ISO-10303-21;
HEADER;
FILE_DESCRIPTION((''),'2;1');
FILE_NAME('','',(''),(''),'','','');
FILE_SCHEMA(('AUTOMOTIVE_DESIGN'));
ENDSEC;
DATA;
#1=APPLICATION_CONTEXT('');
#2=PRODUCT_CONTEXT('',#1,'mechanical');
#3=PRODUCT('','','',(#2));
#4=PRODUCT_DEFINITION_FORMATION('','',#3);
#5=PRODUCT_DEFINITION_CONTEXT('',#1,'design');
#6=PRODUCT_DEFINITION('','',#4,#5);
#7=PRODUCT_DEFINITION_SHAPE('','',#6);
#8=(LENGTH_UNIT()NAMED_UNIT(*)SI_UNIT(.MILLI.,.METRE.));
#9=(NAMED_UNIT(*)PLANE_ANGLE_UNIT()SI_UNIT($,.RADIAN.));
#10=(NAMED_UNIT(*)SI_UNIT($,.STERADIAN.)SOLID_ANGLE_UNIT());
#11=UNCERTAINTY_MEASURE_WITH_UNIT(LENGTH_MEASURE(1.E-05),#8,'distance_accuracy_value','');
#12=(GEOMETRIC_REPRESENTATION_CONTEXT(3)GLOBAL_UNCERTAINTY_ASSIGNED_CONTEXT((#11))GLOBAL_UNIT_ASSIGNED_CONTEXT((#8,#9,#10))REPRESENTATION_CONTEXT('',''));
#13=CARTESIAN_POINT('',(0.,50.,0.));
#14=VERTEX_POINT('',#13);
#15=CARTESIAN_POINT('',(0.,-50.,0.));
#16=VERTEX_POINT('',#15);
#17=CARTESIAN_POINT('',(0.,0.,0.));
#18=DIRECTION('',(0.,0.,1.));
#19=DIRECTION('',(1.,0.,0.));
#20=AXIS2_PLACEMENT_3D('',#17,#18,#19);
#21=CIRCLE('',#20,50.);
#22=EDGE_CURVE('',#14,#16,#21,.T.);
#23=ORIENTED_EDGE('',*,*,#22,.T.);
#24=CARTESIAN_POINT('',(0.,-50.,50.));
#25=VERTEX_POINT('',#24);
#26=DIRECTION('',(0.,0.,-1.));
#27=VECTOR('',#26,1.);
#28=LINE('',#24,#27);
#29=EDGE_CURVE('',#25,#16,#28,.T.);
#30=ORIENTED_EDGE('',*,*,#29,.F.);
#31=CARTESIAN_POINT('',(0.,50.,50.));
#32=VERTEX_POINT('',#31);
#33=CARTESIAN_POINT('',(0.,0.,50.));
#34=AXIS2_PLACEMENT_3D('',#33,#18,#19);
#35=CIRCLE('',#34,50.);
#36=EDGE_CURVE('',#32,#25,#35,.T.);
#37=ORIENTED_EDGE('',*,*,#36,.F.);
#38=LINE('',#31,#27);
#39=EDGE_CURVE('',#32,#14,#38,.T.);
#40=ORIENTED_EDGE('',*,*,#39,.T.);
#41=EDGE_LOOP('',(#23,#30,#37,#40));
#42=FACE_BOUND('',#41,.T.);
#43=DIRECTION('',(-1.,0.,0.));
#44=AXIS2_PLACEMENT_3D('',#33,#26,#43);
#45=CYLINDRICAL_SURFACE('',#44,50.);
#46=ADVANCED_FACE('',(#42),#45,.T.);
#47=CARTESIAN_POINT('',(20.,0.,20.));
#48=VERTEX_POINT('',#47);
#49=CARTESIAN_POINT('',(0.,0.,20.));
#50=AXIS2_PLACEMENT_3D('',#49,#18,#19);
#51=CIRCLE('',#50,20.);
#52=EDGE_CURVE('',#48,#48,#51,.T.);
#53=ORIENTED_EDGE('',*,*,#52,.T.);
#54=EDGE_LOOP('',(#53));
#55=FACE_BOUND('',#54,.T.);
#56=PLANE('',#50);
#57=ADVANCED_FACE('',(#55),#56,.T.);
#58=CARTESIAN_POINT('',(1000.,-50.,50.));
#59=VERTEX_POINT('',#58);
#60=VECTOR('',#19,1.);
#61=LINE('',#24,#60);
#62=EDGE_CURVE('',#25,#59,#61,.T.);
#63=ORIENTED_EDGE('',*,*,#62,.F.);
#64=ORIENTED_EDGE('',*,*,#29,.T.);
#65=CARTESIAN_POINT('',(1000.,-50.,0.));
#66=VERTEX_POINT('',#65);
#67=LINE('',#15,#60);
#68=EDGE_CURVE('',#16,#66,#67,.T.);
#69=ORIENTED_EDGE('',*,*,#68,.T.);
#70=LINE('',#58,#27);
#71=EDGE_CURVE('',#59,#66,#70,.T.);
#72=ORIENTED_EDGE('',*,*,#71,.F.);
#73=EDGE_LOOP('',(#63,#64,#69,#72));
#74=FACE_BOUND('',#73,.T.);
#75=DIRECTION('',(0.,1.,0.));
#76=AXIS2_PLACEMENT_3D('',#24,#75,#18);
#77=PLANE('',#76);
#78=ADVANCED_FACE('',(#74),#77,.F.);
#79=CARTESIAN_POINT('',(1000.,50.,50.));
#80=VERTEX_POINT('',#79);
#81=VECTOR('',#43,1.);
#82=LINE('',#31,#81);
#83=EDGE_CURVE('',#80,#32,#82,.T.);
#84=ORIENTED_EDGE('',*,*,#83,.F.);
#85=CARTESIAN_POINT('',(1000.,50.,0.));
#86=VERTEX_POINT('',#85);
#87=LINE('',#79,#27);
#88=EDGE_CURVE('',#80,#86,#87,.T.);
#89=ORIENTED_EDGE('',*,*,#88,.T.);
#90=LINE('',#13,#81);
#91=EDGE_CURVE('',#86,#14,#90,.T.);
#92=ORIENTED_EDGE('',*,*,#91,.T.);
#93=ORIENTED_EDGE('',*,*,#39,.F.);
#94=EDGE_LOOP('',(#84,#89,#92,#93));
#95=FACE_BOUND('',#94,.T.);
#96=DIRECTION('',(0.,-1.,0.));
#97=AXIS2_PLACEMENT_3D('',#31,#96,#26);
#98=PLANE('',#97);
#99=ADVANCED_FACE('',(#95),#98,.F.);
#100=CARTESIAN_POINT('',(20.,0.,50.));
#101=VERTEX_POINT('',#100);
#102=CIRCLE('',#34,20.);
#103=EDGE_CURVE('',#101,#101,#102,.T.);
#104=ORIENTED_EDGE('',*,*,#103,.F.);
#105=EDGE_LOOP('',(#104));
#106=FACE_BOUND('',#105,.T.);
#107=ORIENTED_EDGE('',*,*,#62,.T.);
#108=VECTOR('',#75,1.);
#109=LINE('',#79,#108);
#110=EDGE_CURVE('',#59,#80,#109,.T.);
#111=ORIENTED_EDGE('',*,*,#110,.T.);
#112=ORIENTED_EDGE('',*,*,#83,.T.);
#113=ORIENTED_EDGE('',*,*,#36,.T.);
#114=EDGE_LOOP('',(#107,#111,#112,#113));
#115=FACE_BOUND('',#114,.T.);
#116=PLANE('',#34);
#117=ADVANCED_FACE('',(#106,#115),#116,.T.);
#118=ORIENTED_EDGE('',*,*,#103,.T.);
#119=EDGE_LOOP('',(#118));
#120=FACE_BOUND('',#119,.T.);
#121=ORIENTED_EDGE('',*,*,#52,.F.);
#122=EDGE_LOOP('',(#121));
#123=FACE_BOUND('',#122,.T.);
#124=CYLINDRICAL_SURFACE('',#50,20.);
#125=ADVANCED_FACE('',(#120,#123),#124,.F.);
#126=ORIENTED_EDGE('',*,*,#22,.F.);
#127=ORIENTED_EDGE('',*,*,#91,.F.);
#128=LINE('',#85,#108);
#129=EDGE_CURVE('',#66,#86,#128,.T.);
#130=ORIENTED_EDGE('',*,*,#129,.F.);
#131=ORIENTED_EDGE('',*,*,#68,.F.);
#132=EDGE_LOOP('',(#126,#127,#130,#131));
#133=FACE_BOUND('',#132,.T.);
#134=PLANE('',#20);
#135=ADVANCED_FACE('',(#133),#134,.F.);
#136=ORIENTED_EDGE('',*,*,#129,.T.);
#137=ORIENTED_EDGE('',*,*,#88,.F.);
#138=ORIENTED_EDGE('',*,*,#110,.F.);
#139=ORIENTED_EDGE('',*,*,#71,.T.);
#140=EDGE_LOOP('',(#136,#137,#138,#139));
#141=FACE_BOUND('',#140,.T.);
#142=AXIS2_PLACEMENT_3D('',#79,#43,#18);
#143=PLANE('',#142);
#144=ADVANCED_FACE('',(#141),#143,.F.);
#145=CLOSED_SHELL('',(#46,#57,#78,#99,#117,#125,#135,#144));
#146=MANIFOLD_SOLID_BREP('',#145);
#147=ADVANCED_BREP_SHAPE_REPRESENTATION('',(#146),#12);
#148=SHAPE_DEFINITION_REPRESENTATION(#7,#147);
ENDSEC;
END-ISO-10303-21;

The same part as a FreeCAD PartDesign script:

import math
import FreeCAD as App
import Part
import Sketcher
from FreeCAD import Vector
Q = App.Units.Quantity

doc = App.newDocument("Part")
body = doc.addObject("PartDesign::Body", "Body")

sketch1 = body.newObject("Sketcher::SketchObject", "Sketch")
sketch1.AttachmentSupport = (doc.getObject("XY_Plane"), [""])
sketch1.MapMode = "FlatFace"
sketch1.addGeometry([
    Part.LineSegment(Vector(1000, 50, 0), Vector(0, 50, 0)),
    Part.ArcOfCircle(Part.Circle(Vector(0, 0, 0), Vector(0, 0, 1), 50), math.radians(90), math.radians(270)),
    Part.LineSegment(Vector(0, -50, 0), Vector(1000, -50, 0)),
    Part.LineSegment(Vector(1000, -50, 0), Vector(1000, 50, 0)),
], False)
sketch1.addConstraint([
    Sketcher.Constraint("Tangent", 0, 2, 1, 1),
    Sketcher.Constraint("Tangent", 1, 2, 2, 1),
    Sketcher.Constraint("Coincident", 2, 2, 3, 1),
    Sketcher.Constraint("Coincident", 3, 2, 0, 1),
    Sketcher.Constraint("Horizontal", 0),
    Sketcher.Constraint("Horizontal", 2),
    Sketcher.Constraint("Vertical", 3),
    Sketcher.Constraint("Coincident", 1, 3, -1, 1),
    Sketcher.Constraint("Radius", 1, Q("50 mm")),
    Sketcher.Constraint("DistanceX", 0, 2, 0, 1, Q("1000 mm")),
])
pad1 = body.newObject("PartDesign::Pad", "Pad")
pad1.Profile = sketch1
pad1.Length = 50

sketch2 = body.newObject("Sketcher::SketchObject", "Sketch001")
sketch2.AttachmentSupport = (doc.getObject("XY_Plane"), [""])
sketch2.MapMode = "FlatFace"
sketch2.AttachmentOffset = App.Placement(Vector(0, 0, 50), App.Rotation())
sketch2.addGeometry(Part.Circle(Vector(0, 0, 0), Vector(0, 0, 1), 20), False)
sketch2.addConstraint([
    Sketcher.Constraint("Coincident", 0, 3, -1, 1),
    Sketcher.Constraint("Diameter", 0, Q("40 mm")),
])
pocket1 = body.newObject("PartDesign::Pocket", "Pocket")
pocket1.Profile = sketch2
pocket1.Length = 30

doc.recompute()
